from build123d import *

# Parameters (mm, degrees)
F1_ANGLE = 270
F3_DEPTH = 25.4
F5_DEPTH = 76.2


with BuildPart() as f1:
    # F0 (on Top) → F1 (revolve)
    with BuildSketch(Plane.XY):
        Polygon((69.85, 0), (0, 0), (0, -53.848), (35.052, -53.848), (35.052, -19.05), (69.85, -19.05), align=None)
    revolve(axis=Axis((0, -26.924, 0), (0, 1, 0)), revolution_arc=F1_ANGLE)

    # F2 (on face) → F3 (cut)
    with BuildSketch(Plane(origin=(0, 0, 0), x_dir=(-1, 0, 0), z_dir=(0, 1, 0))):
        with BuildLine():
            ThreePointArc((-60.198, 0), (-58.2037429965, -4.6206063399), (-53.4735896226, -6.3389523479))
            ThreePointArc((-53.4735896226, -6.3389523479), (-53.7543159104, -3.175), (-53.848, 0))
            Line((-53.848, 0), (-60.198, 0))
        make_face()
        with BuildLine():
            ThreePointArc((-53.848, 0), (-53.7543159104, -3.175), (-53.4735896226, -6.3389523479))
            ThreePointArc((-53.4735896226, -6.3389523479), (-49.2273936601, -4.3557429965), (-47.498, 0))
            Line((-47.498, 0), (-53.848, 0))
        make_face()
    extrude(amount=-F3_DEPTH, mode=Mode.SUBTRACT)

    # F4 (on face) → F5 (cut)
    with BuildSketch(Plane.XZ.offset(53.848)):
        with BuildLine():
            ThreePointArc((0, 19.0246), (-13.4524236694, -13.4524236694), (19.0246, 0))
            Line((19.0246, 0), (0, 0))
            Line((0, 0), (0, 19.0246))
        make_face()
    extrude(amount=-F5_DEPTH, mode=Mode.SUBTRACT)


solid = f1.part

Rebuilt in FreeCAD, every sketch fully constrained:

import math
import FreeCAD as App
import Part
import Sketcher

V = App.Vector
Q = App.Units.Quantity


def add_polygon(sketch, points):
    """Adds a closed chain of lines whose ends are joined by coincident constraints."""
    first, n = sketch.GeometryCount, len(points)
    for a, b in zip(points, points[1:] + points[:1]):
        sketch.addGeometry(Part.LineSegment(App.Vector(*a, 0), App.Vector(*b, 0)), False)
    for i in range(n):
        sketch.addConstraint(Sketcher.Constraint("Coincident", first + i, 2, first + (i + 1) % n, 1))

doc = App.newDocument("Part")
body = doc.addObject("PartDesign::Body", "Body")

# Sketch on XY plane
sketch1 = body.newObject("Sketcher::SketchObject", "Sketch")
sketch1.AttachmentSupport = (doc.getObject("XY_Plane"), [""])
sketch1.MapMode = "FlatFace"
add_polygon(sketch1, [(70, 0), (0, 0), (0, -54), (35, -54), (35, -19), (70, -19)])  # lines 0-5
sketch1.addConstraint(Sketcher.Constraint("Horizontal", 0))
sketch1.addConstraint(Sketcher.Constraint("Vertical", 1))
sketch1.addConstraint(Sketcher.Constraint("Horizontal", 2))
sketch1.addConstraint(Sketcher.Constraint("Vertical", 3))
sketch1.addConstraint(Sketcher.Constraint("Horizontal", 4))
sketch1.addConstraint(Sketcher.Constraint("Vertical", 5))
sketch1.addConstraint(Sketcher.Constraint("Coincident", 0, 2, -1, 1))
sketch1.addConstraint(Sketcher.Constraint("Equal", 4, 3))
sketch1.addConstraint(Sketcher.Constraint("DistanceX", 0, 2, 0, 1, Q("2.75 in")))
sketch1.addConstraint(Sketcher.Constraint("DistanceX", 2, 1, 2, 2, Q("1.38 in")))
sketch1.addConstraint(Sketcher.Constraint("DistanceY", 1, 2, 1, 1, Q("2.12 in")))
revolution = body.newObject("PartDesign::Revolution", "Revolution")
revolution.Profile = sketch1
revolution.ReferenceAxis = (sketch1, ["V_Axis"])
revolution.Angle = 270

# Sketch on XZ plane
sketch2 = body.newObject("Sketcher::SketchObject", "Sketch001")
sketch2.AttachmentSupport = (doc.getObject("XZ_Plane"), [""])
sketch2.MapMode = "FlatFace"
sketch2.addGeometry(Part.ArcOfCircle(Part.Circle(V(54, 0, 0), V(0, 0, 1), 6), math.radians(-93), math.radians(0)), False)
sketch2.addGeometry(Part.ArcOfCircle(Part.Circle(V(54, 0, 0), V(0, 0, 1), 6), math.radians(180), math.radians(267)), False)
sketch2.addGeometry(Part.LineSegment(V(47, 0, 0), V(60, 0, 0)), False)
sketch2.addConstraint(Sketcher.Constraint("Tangent", 0, 1, 1, 2))
sketch2.addConstraint(Sketcher.Constraint("Coincident", 1, 1, 2, 1))
sketch2.addConstraint(Sketcher.Constraint("Coincident", 2, 2, 0, 2))
sketch2.addConstraint(Sketcher.Constraint("Horizontal", 2))
sketch2.addConstraint(Sketcher.Constraint("Equal", 0, 1))
sketch2.addConstraint(Sketcher.Constraint("PointOnObject", 0, 3, -1))
sketch2.addConstraint(Sketcher.Constraint("PointOnObject", 1, 1, -1))
sketch2.addConstraint(Sketcher.Constraint("Radius", 0, Q("0.25 in")))
sketch2.addConstraint(Sketcher.Constraint("DistanceX", -1, 1, 0, 3, Q("2.12 in")))
sketch2.addConstraint(Sketcher.Constraint("DistanceX", -1, 1, 0, 1, Q("53.47359 mm")))
pocket1 = body.newObject("PartDesign::Pocket", "Pocket")
pocket1.Profile = sketch2
pocket1.Length = Q("1 in")
pocket1.Reversed = True

# Sketch on XZ plane
sketch3 = body.newObject("Sketcher::SketchObject", "Sketch002")
sketch3.AttachmentSupport = (doc.getObject("XZ_Plane"), [""])
sketch3.MapMode = "FlatFace"
sketch3.AttachmentOffset = App.Placement(V(0, 0, 2.12 * 25.4), App.Rotation())
sketch3.addGeometry(Part.ArcOfCircle(Part.Circle(V(0, 0, 0), V(0, 0, 1), 19), math.radians(90), math.radians(360)), False)
sketch3.addGeometry(Part.LineSegment(V(19, 0, 0), V(0, 0, 0)), False)
sketch3.addGeometry(Part.LineSegment(V(0, 0, 0), V(0, 19, 0)), False)
sketch3.addConstraint(Sketcher.Constraint("Coincident", 0, 2, 1, 1))
sketch3.addConstraint(Sketcher.Constraint("Coincident", 1, 2, 2, 1))
sketch3.addConstraint(Sketcher.Constraint("Coincident", 2, 2, 0, 1))
sketch3.addConstraint(Sketcher.Constraint("Horizontal", 1))
sketch3.addConstraint(Sketcher.Constraint("Vertical", 2))
sketch3.addConstraint(Sketcher.Constraint("Coincident", 0, 3, -1, 1))
sketch3.addConstraint(Sketcher.Constraint("Coincident", 1, 2, -1, 1))
sketch3.addConstraint(Sketcher.Constraint("Radius", 0, Q("0.749 in")))
pocket2 = body.newObject("PartDesign::Pocket", "Pocket001")
pocket2.Profile = sketch3
pocket2.Length = Q("3 in")

doc.recompute()
